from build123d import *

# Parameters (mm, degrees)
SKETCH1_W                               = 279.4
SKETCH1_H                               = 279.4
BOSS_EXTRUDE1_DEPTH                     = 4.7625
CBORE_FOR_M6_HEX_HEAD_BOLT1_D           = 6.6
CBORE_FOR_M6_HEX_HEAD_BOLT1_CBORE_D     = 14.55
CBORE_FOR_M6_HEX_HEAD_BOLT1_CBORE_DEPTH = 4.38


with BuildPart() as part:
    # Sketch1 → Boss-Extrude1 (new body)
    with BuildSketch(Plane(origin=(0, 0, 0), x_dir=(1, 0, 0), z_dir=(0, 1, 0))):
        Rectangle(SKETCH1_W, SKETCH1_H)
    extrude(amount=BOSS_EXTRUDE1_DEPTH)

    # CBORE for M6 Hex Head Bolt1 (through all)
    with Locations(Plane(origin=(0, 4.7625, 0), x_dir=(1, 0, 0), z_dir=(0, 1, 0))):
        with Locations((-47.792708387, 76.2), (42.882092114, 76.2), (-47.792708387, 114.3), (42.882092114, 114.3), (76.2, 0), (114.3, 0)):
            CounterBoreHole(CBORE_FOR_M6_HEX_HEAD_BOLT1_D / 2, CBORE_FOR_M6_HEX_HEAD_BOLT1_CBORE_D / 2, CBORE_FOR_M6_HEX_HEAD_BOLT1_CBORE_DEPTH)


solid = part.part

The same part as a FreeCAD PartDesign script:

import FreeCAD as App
import Part
import Sketcher

V = App.Vector
Q = App.Units.Quantity


def add_polygon(sketch, points):
    """Adds a closed chain of lines whose ends are joined by coincident constraints."""
    first, n = sketch.GeometryCount, len(points)
    for a, b in zip(points, points[1:] + points[:1]):
        sketch.addGeometry(Part.LineSegment(App.Vector(*a, 0), App.Vector(*b, 0)), False)
    for i in range(n):
        sketch.addConstraint(Sketcher.Constraint("Coincident", first + i, 2, first + (i + 1) % n, 1))

doc = App.newDocument("Part")
body = doc.addObject("PartDesign::Body", "Body")

# Sketch on XZ plane
sketch1 = doc.addObject("Sketcher::SketchObject", "Sketch")
body.addObject(sketch1)
sketch1.AttachmentSupport = (doc.XZ_Plane, [""])
sketch1.MapMode = "FlatFace"
add_polygon(sketch1, [(-139.7, -139.7), (-139.7, 139.7), (139.7, 139.7), (139.7, -139.7)])  # lines 0-3
sketch1.addConstraint(Sketcher.Constraint("Vertical", 0))
sketch1.addConstraint(Sketcher.Constraint("Horizontal", 1))
sketch1.addConstraint(Sketcher.Constraint("Vertical", 2))
sketch1.addConstraint(Sketcher.Constraint("Horizontal", 3))
sketch1.addConstraint(Sketcher.Constraint("Symmetric", 0, 2, 2, 2, -1, 1))
sketch1.addConstraint(Sketcher.Constraint("Equal", 3, 0))
sketch1.addConstraint(Sketcher.Constraint("DistanceX", 1, 1, 1, 2, Q("11 in")))
pad1 = doc.addObject("PartDesign::Pad", "Pad")
body.addObject(pad1)
pad1.Profile = sketch1
pad1.Length = Q("0.1875 in")
pad1.Reversed = True

# Sketch on XZ plane
sketch2 = doc.addObject("Sketcher::SketchObject", "Sketch001")
body.addObject(sketch2)
sketch2.AttachmentSupport = (doc.XZ_Plane, [""])
sketch2.MapMode = "FlatFace"
sketch2.AttachmentOffset = App.Placement(V(0, 0, -0.1875 * 25.4), App.Rotation())
sketch2.addGeometry(Part.Circle(V(-47.792708, -76.2, 0), V(0, 0, 1), 3.3), False)
sketch2.addGeometry(Part.Circle(V(42.882092, -76.2, 0), V(0, 0, 1), 3.3), False)
sketch2.addGeometry(Part.Circle(V(-47.792708, -114.3, 0), V(0, 0, 1), 3.3), False)
sketch2.addGeometry(Part.Circle(V(42.882092, -114.3, 0), V(0, 0, 1), 3.3), False)
sketch2.addGeometry(Part.Circle(V(76.2, 0, 0), V(0, 0, 1), 3.3), False)
sketch2.addGeometry(Part.Circle(V(114.3, 0, 0), V(0, 0, 1), 3.3), False)
sketch2.addConstraint(Sketcher.Constraint("Equal", 0, 1))
sketch2.addConstraint(Sketcher.Constraint("Equal", 1, 2))
sketch2.addConstraint(Sketcher.Constraint("Equal", 2, 3))
sketch2.addConstraint(Sketcher.Constraint("Equal", 3, 4))
sketch2.addConstraint(Sketcher.Constraint("Equal", 4, 5))
sketch2.addConstraint(Sketcher.Constraint("PointOnObject", 4, 3, -1))
sketch2.addConstraint(Sketcher.Constraint("PointOnObject", 5, 3, -1))
sketch2.addConstraint(Sketcher.Constraint("Horizontal", 0, 3, 1, 3))
sketch2.addConstraint(Sketcher.Constraint("Horizontal", 2, 3, 3, 3))
sketch2.addConstraint(Sketcher.Constraint("Vertical", 0, 3, 2, 3))
sketch2.addConstraint(Sketcher.Constraint("Vertical", 1, 3, 3, 3))
sketch2.addConstraint(Sketcher.Constraint("DistanceY", 0, 3, -1, 1, Q("3 in")))
sketch2.addConstraint(Sketcher.Constraint("DistanceX", -1, 1, 4, 3, Q("3 in")))
sketch2.addConstraint(Sketcher.Constraint("DistanceY", 2, 3, -1, 1, Q("4.5 in")))
sketch2.addConstraint(Sketcher.Constraint("DistanceX", -1, 1, 5, 3, Q("4.5 in")))
sketch2.addConstraint(Sketcher.Constraint("Diameter", 0, Q("6.6 mm")))
sketch2.addConstraint(Sketcher.Constraint("DistanceX", 0, 3, 1, 3, Q("90.674801 mm")))
sketch2.addConstraint(Sketcher.Constraint("DistanceX", 0, 3, -1, 1, Q("47.792708 mm")))
doc.recompute()
hole = doc.addObject("PartDesign::Hole", "Hole")
body.addObject(hole)
hole.Profile = sketch2
hole.ThreadType = "None"
hole.Diameter = 6.6
hole.DepthType = "ThroughAll"
hole.HoleCutType = "Counterbore"
hole.HoleCutDiameter = 14.55
hole.HoleCutDepth = 4.38
hole.Reversed = True

doc.recompute()
